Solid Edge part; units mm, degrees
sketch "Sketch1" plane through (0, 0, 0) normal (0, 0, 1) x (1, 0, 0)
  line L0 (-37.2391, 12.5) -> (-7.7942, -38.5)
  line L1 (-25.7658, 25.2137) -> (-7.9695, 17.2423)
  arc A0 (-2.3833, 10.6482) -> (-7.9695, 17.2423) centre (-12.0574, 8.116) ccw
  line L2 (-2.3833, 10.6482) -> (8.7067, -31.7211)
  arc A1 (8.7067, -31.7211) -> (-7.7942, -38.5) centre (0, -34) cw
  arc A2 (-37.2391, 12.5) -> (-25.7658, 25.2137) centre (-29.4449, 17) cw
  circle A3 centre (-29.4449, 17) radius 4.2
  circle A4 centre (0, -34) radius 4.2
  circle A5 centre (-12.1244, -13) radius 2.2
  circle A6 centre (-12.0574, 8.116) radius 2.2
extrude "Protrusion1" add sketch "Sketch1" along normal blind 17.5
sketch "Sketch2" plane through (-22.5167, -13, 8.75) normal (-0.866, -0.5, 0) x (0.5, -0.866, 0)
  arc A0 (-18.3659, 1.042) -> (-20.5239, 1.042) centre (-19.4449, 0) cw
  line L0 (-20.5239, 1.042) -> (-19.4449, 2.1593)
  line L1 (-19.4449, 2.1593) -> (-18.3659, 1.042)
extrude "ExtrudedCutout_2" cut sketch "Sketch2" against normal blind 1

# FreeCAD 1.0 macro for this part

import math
import FreeCAD as App
import Part
import Sketcher
from FreeCAD import Vector
Q = App.Units.Quantity

doc = App.newDocument("Part")
body = doc.addObject("PartDesign::Body", "Body")

sketch1 = body.newObject("Sketcher::SketchObject", "Sketch")
sketch1.AttachmentSupport = (doc.getObject("XY_Plane"), [""])
sketch1.MapMode = "FlatFace"
sketch1.addGeometry([
    Part.ArcOfCircle(Part.Circle(Vector(-29.4, 17, 0), Vector(0, 0, 1), 9), math.radians(66), math.radians(210)),
    Part.LineSegment(Vector(-37.2, 12.5, 0), Vector(-7.8, -38.5, 0)),
    Part.ArcOfCircle(Part.Circle(Vector(0, -34, 0), Vector(0, 0, 1), 9), math.radians(-150), math.radians(15)),
    Part.LineSegment(Vector(8.7, -31.7, 0), Vector(-2.4, 10.6, 0)),
    Part.ArcOfCircle(Part.Circle(Vector(-12.1, 8.1, 0), Vector(0, 0, 1), 10), math.radians(15), math.radians(66)),
    Part.LineSegment(Vector(-8, 17.2, 0), Vector(-25.8, 25.2, 0)),
    Part.Circle(Vector(0, -34, 0), Vector(0, 0, 1), 4.2),
    Part.Circle(Vector(-12.1, -13, 0), Vector(0, 0, 1), 2.2),
    Part.Circle(Vector(-29.4, 17, 0), Vector(0, 0, 1), 4.2),
    Part.Circle(Vector(-12.1, 8.1, 0), Vector(0, 0, 1), 2.2),
], False)
sketch1.addConstraint([
    Sketcher.Constraint("Tangent", 0, 2, 1, 1),
    Sketcher.Constraint("Tangent", 1, 2, 2, 1),
    Sketcher.Constraint("Tangent", 2, 2, 3, 1),
    Sketcher.Constraint("Tangent", 3, 2, 4, 1),
    Sketcher.Constraint("Tangent", 4, 2, 5, 1),
    Sketcher.Constraint("Tangent", 5, 2, 0, 1),
    Sketcher.Constraint("Coincident", 6, 3, 2, 3),
    Sketcher.Constraint("Coincident", 8, 3, 0, 3),
    Sketcher.Constraint("Coincident", 9, 3, 4, 3),
    Sketcher.Constraint("Equal", 0, 2),
    Sketcher.Constraint("Equal", 6, 8),
    Sketcher.Constraint("Equal", 7, 9),
    Sketcher.Constraint("PointOnObject", 2, 3, -2),
    Sketcher.Constraint("Radius", 0, Q("9 mm")),
    Sketcher.Constraint("Radius", 4, Q("10 mm")),
    Sketcher.Constraint("Diameter", 6, Q("8.4 mm")),
    Sketcher.Constraint("Diameter", 7, Q("4.4 mm")),
    Sketcher.Constraint("Angle", 1, Q("-60 deg")),
    Sketcher.Constraint("DistanceY", -1, 1, 0, 3, Q("17 mm")),
    Sketcher.Constraint("DistanceY", 2, 3, -1, 1, Q("34 mm")),
    Sketcher.Constraint("DistanceY", 7, 3, -1, 1, Q("13 mm")),
    Sketcher.Constraint("Distance", 5, Q("19.5 mm")),
    Sketcher.Constraint("DistanceY", -1, 1, 4, 3, Q("8.116 mm")),
    Sketcher.Constraint("DistanceX", 7, 3, 4, 3, Q("0.067 mm")),
])
pad1 = body.newObject("PartDesign::Pad", "Pad")
pad1.Profile = sketch1
pad1.Length = 17.5

sketch2 = body.newObject("Sketcher::SketchObject", "Sketch001")
sketch2.Placement = App.Placement(Vector(-22.5167, -13, 8.75), App.Rotation(Vector(0.5, -0.866025404, 0), Vector(0, 0, 1), Vector(-0.866025404, -0.5, 0), "ZXY"))
sketch2.addGeometry([
    Part.ArcOfCircle(Part.Circle(Vector(-19.4, 0, 0), Vector(0, 0, 1), 1.5), math.radians(136), math.radians(404)),
    Part.LineSegment(Vector(-18.4, 1, 0), Vector(-19.4, 2.2, 0)),
    Part.LineSegment(Vector(-19.4, 2.2, 0), Vector(-20.5, 1, 0)),
], False)
sketch2.addConstraint([
    Sketcher.Constraint("Tangent", 0, 2, 1, 1),
    Sketcher.Constraint("Coincident", 1, 2, 2, 1),
    Sketcher.Constraint("Tangent", 2, 2, 0, 1),
    Sketcher.Constraint("PointOnObject", 0, 3, -1),
    Sketcher.Constraint("Horizontal", 0, 2, 2, 2),
    Sketcher.Constraint("Radius", 0, Q("1.5 mm")),
    Sketcher.Constraint("Angle", 1, Q("134.001 deg")),
    Sketcher.Constraint("DistanceX", 0, 3, -1, 1, Q("19.445 mm")),
])
pocket1 = body.newObject("PartDesign::Pocket", "Pocket")
pocket1.Profile = sketch2
pocket1.Length = 1

doc.recompute()
